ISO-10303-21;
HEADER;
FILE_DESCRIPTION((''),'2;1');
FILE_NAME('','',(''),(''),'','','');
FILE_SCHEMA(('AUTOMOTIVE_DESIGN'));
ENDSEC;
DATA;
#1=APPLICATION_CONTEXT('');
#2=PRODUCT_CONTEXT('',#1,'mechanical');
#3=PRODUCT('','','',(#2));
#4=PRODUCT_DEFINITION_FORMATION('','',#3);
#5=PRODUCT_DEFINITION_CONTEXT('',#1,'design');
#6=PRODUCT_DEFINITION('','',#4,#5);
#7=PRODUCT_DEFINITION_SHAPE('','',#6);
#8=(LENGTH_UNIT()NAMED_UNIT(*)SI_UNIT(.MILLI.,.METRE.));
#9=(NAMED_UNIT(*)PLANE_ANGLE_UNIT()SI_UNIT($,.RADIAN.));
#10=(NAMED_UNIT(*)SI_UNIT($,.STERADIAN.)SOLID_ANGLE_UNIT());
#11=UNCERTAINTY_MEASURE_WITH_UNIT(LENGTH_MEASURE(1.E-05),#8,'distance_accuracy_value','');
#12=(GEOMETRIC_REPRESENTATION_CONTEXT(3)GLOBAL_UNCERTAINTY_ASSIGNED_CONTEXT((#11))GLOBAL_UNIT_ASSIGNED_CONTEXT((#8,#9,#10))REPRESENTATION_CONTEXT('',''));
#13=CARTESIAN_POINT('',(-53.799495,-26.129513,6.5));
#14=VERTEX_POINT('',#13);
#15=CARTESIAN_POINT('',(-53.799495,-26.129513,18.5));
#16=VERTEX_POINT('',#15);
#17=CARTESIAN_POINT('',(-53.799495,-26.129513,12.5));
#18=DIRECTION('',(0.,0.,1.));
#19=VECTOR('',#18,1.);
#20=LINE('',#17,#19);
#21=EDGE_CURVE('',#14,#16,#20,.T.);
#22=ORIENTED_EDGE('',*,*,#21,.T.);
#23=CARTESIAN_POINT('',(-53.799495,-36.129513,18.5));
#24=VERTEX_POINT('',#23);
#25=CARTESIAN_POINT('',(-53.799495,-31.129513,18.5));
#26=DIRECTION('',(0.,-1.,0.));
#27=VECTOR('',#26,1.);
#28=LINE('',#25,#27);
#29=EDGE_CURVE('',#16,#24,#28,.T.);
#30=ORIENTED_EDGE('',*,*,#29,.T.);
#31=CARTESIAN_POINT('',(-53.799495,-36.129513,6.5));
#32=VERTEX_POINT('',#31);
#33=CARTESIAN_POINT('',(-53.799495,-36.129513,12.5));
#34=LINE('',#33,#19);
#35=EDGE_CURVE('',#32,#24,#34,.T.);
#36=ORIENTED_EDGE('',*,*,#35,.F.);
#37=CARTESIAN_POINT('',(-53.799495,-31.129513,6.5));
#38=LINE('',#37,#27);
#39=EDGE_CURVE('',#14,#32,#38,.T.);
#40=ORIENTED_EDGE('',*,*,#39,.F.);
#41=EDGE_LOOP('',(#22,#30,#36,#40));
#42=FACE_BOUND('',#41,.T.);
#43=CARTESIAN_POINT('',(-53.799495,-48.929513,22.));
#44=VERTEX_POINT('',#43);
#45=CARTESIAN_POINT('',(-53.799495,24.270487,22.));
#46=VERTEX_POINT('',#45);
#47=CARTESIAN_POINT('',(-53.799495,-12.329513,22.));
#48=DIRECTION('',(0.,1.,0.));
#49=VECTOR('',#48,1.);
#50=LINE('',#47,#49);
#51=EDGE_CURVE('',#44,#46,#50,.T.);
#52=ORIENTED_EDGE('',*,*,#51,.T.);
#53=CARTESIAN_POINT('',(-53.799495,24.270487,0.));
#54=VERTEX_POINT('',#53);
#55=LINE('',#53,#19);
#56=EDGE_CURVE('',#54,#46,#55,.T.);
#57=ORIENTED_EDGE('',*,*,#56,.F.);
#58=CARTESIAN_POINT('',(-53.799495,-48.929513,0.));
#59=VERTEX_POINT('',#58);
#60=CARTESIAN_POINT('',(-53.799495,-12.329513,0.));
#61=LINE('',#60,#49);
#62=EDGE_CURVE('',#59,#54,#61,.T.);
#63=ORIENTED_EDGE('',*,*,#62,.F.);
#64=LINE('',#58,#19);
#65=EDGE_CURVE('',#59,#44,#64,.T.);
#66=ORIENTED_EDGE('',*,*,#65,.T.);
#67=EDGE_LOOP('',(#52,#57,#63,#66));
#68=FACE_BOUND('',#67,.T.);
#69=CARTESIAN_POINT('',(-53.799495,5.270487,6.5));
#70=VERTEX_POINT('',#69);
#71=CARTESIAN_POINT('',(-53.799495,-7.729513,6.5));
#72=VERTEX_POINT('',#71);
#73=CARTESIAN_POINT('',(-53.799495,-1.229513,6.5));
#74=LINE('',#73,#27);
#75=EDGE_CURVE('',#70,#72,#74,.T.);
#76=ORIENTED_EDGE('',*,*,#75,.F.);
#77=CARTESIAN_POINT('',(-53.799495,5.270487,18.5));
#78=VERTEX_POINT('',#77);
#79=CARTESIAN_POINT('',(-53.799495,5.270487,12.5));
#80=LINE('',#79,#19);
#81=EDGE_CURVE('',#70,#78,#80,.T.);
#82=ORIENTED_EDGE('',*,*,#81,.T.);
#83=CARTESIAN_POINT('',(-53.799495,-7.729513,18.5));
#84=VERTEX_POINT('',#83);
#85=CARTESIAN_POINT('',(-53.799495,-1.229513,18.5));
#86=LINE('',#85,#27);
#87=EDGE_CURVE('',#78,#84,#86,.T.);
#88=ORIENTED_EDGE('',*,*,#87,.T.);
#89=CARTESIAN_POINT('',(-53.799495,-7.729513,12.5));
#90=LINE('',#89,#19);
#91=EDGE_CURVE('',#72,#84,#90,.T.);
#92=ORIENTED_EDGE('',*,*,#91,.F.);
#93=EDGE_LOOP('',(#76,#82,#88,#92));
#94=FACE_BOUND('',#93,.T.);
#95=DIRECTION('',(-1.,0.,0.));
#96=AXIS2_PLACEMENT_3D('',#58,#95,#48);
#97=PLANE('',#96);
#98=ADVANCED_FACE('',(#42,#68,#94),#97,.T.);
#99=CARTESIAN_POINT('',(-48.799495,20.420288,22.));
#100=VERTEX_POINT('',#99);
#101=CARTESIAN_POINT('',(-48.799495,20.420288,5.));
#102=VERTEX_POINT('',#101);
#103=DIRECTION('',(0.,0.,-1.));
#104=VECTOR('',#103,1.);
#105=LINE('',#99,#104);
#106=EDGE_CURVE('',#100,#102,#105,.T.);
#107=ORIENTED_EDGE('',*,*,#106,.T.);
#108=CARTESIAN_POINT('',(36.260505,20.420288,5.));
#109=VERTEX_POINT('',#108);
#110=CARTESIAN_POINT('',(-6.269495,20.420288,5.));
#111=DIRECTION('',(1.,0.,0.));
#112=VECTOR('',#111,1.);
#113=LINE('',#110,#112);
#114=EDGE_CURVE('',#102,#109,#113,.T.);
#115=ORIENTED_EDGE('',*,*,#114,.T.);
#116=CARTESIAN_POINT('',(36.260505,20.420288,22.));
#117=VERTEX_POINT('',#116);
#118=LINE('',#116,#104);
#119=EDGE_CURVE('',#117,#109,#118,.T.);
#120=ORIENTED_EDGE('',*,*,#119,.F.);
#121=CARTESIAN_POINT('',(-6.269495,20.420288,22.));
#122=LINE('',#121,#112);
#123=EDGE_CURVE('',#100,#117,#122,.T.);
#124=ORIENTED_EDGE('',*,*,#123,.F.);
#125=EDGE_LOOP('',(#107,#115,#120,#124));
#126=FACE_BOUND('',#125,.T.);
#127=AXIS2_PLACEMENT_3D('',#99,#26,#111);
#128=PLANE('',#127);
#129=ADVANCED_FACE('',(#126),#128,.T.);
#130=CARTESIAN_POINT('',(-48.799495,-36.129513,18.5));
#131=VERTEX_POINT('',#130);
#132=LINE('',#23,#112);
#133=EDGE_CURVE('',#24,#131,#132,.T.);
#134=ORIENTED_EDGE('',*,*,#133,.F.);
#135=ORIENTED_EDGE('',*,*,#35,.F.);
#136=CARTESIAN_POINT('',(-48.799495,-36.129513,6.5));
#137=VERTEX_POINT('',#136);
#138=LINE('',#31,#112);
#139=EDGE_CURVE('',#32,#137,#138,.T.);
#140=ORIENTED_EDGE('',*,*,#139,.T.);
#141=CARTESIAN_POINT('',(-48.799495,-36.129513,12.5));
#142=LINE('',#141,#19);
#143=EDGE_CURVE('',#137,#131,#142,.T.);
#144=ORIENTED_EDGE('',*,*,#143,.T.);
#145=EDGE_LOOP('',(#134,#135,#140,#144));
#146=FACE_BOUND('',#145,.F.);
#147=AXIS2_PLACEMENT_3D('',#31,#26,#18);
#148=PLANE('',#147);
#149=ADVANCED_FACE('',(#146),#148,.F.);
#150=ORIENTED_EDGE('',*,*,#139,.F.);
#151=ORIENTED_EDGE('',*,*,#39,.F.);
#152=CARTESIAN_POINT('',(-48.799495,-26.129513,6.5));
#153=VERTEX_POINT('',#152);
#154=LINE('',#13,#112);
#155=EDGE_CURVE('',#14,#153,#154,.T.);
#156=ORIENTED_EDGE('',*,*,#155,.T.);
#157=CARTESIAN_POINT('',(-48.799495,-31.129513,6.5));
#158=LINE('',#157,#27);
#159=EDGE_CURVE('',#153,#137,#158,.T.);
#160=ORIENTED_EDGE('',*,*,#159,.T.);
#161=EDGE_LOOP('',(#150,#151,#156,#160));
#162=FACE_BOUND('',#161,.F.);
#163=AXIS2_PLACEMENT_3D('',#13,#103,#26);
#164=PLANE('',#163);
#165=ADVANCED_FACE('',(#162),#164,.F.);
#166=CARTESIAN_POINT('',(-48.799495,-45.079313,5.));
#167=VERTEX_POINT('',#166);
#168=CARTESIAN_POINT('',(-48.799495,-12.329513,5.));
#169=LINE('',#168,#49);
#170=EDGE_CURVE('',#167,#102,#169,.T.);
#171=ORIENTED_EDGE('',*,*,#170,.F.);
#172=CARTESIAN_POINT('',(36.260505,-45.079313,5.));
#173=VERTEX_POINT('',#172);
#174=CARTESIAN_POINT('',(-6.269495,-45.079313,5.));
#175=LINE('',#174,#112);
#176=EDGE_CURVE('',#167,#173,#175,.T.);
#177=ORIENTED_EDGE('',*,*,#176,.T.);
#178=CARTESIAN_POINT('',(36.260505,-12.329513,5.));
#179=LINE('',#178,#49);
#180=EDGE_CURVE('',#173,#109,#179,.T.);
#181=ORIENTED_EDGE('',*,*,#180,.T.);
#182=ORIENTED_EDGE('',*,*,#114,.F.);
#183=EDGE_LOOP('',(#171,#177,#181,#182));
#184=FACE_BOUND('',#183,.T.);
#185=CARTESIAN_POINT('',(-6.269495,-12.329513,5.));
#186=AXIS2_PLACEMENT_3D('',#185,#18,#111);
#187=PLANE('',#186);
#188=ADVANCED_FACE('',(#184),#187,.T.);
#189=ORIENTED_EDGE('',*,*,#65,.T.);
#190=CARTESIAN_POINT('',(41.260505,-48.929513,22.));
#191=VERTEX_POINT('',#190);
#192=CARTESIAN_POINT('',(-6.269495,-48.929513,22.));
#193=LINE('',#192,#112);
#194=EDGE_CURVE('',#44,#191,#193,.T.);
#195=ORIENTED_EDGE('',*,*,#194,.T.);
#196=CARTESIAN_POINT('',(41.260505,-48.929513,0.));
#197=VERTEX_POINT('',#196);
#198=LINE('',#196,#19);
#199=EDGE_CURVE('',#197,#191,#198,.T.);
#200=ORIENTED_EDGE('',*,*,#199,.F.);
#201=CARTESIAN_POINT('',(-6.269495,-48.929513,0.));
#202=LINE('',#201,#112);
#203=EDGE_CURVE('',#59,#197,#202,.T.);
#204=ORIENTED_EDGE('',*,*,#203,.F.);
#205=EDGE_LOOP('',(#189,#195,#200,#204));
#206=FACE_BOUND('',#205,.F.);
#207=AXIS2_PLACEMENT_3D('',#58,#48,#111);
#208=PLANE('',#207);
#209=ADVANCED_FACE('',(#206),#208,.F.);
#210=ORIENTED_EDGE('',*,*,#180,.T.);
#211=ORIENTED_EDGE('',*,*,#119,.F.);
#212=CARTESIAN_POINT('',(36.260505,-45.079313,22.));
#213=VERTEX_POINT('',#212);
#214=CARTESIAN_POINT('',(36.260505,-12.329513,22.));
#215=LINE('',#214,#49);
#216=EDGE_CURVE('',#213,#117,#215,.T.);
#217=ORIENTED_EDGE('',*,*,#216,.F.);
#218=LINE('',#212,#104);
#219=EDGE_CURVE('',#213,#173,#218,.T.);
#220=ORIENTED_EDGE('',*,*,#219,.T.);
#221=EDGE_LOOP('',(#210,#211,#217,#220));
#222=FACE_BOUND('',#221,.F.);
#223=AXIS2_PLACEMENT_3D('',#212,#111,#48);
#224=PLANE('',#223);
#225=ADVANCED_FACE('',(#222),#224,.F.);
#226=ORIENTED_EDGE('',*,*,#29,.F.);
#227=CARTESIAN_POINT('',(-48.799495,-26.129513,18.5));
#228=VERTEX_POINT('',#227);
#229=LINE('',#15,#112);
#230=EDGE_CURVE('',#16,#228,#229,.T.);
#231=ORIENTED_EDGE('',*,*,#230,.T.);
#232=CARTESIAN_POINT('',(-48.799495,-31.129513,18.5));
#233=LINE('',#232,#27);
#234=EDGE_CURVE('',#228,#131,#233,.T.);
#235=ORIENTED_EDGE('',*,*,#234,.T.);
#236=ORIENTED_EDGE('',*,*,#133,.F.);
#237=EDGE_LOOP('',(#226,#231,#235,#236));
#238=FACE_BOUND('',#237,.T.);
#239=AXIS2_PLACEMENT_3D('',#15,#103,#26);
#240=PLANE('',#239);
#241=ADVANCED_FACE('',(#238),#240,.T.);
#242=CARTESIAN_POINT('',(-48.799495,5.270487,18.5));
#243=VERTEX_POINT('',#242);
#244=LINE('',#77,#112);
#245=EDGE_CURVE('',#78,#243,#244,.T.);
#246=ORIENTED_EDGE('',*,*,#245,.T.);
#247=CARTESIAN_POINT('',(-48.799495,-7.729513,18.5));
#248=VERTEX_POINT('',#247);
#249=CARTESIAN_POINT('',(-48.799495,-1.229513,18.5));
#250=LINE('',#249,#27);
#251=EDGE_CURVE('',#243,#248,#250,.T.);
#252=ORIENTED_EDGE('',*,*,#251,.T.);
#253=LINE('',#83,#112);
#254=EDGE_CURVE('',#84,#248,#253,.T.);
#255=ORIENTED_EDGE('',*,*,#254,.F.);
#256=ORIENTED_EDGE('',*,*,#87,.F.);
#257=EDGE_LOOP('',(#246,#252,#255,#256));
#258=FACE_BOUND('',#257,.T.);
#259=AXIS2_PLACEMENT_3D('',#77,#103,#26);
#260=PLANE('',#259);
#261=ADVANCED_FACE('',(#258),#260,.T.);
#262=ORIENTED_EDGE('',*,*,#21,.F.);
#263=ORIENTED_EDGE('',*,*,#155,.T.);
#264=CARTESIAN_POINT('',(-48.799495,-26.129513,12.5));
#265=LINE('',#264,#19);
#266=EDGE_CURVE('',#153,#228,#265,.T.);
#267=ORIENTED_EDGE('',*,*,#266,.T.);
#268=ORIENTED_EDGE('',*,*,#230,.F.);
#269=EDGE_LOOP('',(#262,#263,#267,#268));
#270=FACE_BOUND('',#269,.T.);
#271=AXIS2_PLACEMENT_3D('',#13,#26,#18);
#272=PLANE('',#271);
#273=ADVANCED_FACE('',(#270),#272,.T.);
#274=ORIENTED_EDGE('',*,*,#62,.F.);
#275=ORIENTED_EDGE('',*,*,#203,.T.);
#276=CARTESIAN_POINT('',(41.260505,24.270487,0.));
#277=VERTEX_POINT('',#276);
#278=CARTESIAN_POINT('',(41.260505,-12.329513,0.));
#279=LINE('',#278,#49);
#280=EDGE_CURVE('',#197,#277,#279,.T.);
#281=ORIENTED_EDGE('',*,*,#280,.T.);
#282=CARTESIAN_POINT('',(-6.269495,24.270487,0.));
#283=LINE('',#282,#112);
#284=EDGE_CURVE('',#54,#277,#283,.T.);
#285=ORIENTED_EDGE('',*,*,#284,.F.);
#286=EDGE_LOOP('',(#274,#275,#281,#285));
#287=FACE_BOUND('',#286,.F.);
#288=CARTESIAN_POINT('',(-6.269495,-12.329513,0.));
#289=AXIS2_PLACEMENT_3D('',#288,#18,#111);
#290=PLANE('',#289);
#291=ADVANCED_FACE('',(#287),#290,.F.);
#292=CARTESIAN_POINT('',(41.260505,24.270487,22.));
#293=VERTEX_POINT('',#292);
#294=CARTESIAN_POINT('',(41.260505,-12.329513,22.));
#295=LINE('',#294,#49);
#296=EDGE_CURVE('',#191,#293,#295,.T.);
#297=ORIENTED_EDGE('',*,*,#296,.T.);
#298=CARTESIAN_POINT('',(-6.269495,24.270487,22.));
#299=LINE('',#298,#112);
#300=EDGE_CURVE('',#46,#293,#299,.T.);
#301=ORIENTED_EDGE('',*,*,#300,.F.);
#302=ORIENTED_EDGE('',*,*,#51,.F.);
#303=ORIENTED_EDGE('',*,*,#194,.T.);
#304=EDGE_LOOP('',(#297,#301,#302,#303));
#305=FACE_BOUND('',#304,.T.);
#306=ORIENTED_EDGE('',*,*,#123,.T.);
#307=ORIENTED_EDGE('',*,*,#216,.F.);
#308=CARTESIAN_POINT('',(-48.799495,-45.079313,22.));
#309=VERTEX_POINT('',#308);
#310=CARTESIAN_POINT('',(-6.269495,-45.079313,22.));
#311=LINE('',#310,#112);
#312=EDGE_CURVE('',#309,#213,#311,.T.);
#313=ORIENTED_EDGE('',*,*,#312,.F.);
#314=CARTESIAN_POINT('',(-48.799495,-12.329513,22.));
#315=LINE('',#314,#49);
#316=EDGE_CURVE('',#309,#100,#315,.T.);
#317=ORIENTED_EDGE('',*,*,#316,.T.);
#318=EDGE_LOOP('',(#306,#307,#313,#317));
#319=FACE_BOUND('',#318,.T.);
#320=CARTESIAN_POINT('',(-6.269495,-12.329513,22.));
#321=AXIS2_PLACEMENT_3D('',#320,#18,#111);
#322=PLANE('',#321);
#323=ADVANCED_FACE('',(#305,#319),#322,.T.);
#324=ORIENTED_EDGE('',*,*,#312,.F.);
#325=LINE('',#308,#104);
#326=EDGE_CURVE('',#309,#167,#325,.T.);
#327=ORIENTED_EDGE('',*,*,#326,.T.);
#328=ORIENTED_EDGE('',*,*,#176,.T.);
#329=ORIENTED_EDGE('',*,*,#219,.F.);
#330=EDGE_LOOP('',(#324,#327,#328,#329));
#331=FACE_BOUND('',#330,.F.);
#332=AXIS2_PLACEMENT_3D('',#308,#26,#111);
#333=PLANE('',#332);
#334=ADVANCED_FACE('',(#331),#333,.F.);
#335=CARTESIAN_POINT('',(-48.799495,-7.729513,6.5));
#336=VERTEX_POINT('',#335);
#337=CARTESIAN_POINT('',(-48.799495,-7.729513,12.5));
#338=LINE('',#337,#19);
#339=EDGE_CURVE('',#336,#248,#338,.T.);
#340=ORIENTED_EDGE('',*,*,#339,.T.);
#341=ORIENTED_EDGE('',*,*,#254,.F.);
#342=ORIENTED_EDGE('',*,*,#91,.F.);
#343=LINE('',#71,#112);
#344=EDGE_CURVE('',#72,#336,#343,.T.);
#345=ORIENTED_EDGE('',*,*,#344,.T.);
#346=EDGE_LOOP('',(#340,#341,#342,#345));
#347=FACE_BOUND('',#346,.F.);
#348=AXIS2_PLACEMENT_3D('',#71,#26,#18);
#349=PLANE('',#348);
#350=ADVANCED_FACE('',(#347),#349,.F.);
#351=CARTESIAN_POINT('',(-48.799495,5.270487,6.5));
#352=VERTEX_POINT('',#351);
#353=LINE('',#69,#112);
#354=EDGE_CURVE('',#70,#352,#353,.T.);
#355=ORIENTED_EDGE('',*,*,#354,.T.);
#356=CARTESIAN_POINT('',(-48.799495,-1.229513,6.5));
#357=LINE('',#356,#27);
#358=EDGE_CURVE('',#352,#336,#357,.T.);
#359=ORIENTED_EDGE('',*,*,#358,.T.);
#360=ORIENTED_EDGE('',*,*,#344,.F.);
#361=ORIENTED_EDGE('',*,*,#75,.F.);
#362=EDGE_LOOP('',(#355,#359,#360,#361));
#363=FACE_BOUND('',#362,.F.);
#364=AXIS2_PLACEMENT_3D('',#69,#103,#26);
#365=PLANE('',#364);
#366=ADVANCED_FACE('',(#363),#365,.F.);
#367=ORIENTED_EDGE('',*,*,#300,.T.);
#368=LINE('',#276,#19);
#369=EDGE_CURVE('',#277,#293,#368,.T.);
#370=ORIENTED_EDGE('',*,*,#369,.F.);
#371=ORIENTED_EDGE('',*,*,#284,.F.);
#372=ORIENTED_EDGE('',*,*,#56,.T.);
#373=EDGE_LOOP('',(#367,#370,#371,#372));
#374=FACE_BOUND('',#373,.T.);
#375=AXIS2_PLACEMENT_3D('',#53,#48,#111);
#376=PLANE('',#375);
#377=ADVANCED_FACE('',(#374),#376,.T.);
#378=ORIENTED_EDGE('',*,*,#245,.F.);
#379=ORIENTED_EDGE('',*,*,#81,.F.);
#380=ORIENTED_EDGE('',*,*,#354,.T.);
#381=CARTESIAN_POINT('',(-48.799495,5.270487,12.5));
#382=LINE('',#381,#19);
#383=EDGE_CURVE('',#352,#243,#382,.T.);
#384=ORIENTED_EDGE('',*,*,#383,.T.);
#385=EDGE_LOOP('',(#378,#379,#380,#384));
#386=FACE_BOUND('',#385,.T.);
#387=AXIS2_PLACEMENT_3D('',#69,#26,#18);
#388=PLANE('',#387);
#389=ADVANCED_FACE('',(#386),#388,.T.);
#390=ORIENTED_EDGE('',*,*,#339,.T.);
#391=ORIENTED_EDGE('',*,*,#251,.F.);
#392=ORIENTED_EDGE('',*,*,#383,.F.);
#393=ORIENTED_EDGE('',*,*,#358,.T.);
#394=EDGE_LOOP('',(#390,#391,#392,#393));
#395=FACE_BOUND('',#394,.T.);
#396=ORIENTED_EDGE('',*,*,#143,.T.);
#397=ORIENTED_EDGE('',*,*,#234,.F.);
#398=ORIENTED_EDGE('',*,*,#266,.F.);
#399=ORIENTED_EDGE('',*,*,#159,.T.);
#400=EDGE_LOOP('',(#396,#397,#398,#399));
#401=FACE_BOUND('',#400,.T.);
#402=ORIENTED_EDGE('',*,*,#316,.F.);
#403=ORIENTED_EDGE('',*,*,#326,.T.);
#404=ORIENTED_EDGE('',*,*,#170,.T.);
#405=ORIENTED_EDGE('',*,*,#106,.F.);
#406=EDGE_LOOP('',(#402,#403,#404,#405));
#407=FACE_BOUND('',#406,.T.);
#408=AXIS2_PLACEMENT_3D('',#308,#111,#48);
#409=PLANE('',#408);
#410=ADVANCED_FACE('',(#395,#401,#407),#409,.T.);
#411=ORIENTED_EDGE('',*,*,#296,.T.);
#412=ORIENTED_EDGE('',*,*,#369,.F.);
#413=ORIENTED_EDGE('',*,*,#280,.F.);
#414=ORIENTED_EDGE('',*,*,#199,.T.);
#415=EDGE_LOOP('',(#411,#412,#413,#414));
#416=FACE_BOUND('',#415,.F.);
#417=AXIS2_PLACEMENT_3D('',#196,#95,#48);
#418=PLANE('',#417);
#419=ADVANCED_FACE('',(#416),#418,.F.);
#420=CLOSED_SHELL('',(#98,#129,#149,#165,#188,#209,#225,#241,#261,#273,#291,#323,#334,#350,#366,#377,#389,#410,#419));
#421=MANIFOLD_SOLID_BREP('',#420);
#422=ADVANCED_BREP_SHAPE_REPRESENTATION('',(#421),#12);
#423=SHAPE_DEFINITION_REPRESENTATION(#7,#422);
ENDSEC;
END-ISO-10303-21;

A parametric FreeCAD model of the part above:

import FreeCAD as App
import Part
import Sketcher
from FreeCAD import Vector
Q = App.Units.Quantity


def add_polygon(sketch, points):
    """Adds a closed chain of lines whose ends are joined by coincident constraints."""
    first, n = sketch.GeometryCount, len(points)
    for a, b in zip(points, points[1:] + points[:1]):
        sketch.addGeometry(Part.LineSegment(App.Vector(*a, 0), App.Vector(*b, 0)), False)
    for i in range(n):
        sketch.addConstraint(Sketcher.Constraint("Coincident", first + i, 2, first + (i + 1) % n, 1))

doc = App.newDocument("Part")
body = doc.addObject("PartDesign::Body", "Body")

# Sketch on XY plane
sketch1 = body.newObject("Sketcher::SketchObject", "Sketch")
sketch1.AttachmentSupport = (doc.getObject("XY_Plane"), [""])
sketch1.MapMode = "FlatFace"
add_polygon(sketch1, [(-53.799495, 24.270487), (-53.799495, -48.929513), (41.260505, -48.929513), (41.260505, 24.270487)])  # lines 0-3
sketch1.addConstraint([
    Sketcher.Constraint("Vertical", 0),
    Sketcher.Constraint("Horizontal", 1),
    Sketcher.Constraint("Vertical", 2),
    Sketcher.Constraint("Horizontal", 3),
    Sketcher.Constraint("DistanceY", 0, 2, 0, 1, Q("73.2 mm")),
    Sketcher.Constraint("DistanceX", 1, 1, 1, 2, Q("95.06 mm")),
    Sketcher.Constraint("DistanceX", 0, 2, -1, 1, Q("53.799495 mm")),
    Sketcher.Constraint("DistanceY", 0, 2, -1, 1, Q("48.929513 mm")),
])
pad1 = body.newObject("PartDesign::Pad", "Pad")
pad1.Profile = sketch1
pad1.Length = 22

# Sketch on XY plane
sketch2 = body.newObject("Sketcher::SketchObject", "Sketch001")
sketch2.AttachmentSupport = (doc.getObject("XY_Plane"), [""])
sketch2.MapMode = "FlatFace"
sketch2.AttachmentOffset = App.Placement(Vector(0, 0, 22), App.Rotation())
add_polygon(sketch2, [(-48.799495, 20.420288), (-48.799495, -45.079313), (36.260505, -45.079313), (36.260505, 20.420288)])  # lines 0-3
sketch2.addConstraint([
    Sketcher.Constraint("Vertical", 0),
    Sketcher.Constraint("Horizontal", 1),
    Sketcher.Constraint("Vertical", 2),
    Sketcher.Constraint("Horizontal", 3),
    Sketcher.Constraint("DistanceX", 1, 1, 1, 2, Q("85.06 mm")),
    Sketcher.Constraint("DistanceY", 0, 2, 0, 1, Q("65.4996 mm")),
    Sketcher.Constraint("DistanceX", 0, 2, -1, 1, Q("48.799495 mm")),
    Sketcher.Constraint("DistanceY", 0, 2, -1, 1, Q("45.079313 mm")),
])
pocket1 = body.newObject("PartDesign::Pocket", "Pocket")
pocket1.Profile = sketch2
pocket1.Length = 17

# Sketch on YZ plane
sketch3 = body.newObject("Sketcher::SketchObject", "Sketch002")
sketch3.AttachmentSupport = (doc.getObject("YZ_Plane"), [""])
sketch3.MapMode = "FlatFace"
sketch3.AttachmentOffset = App.Placement(Vector(0, 0, -53.799495), App.Rotation())
add_polygon(sketch3, [(5.270487, 18.5), (5.270487, 6.5), (-7.729513, 6.5), (-7.729513, 18.5)])  # lines 0-3
sketch3.addConstraint([
    Sketcher.Constraint("Vertical", 0),
    Sketcher.Constraint("Horizontal", 1),
    Sketcher.Constraint("Vertical", 2),
    Sketcher.Constraint("Horizontal", 3),
    Sketcher.Constraint("DistanceX", 1, 2, 1, 1, Q("13 mm")),
    Sketcher.Constraint("DistanceY", 0, 2, 0, 1, Q("12 mm")),
    Sketcher.Constraint("DistanceY", -1, 1, 0, 2, Q("6.5 mm")),
    Sketcher.Constraint("DistanceX", -1, 1, 0, 2, Q("5.270487 mm")),
])
pocket2 = body.newObject("PartDesign::Pocket", "Pocket001")
pocket2.Profile = sketch3
pocket2.Length = 5
pocket2.Reversed = True

# Sketch on YZ plane
sketch4 = body.newObject("Sketcher::SketchObject", "Sketch003")
sketch4.AttachmentSupport = (doc.getObject("YZ_Plane"), [""])
sketch4.MapMode = "FlatFace"
sketch4.AttachmentOffset = App.Placement(Vector(0, 0, -53.799495), App.Rotation())
add_polygon(sketch4, [(-26.129513, 18.5), (-26.129513, 6.5), (-36.129513, 6.5), (-36.129513, 18.5)])  # lines 0-3
sketch4.addConstraint([
    Sketcher.Constraint("Vertical", 0),
    Sketcher.Constraint("Horizontal", 1),
    Sketcher.Constraint("Vertical", 2),
    Sketcher.Constraint("Horizontal", 3),
    Sketcher.Constraint("DistanceX", 1, 2, 1, 1, Q("10 mm")),
    Sketcher.Constraint("DistanceY", 0, 2, 0, 1, Q("12 mm")),
    Sketcher.Constraint("DistanceY", -1, 1, 0, 2, Q("6.5 mm")),
    Sketcher.Constraint("DistanceX", 0, 2, -1, 1, Q("26.129513 mm")),
])
pocket3 = body.newObject("PartDesign::Pocket", "Pocket002")
pocket3.Profile = sketch4
pocket3.Length = 5
pocket3.Reversed = True

doc.recompute()
